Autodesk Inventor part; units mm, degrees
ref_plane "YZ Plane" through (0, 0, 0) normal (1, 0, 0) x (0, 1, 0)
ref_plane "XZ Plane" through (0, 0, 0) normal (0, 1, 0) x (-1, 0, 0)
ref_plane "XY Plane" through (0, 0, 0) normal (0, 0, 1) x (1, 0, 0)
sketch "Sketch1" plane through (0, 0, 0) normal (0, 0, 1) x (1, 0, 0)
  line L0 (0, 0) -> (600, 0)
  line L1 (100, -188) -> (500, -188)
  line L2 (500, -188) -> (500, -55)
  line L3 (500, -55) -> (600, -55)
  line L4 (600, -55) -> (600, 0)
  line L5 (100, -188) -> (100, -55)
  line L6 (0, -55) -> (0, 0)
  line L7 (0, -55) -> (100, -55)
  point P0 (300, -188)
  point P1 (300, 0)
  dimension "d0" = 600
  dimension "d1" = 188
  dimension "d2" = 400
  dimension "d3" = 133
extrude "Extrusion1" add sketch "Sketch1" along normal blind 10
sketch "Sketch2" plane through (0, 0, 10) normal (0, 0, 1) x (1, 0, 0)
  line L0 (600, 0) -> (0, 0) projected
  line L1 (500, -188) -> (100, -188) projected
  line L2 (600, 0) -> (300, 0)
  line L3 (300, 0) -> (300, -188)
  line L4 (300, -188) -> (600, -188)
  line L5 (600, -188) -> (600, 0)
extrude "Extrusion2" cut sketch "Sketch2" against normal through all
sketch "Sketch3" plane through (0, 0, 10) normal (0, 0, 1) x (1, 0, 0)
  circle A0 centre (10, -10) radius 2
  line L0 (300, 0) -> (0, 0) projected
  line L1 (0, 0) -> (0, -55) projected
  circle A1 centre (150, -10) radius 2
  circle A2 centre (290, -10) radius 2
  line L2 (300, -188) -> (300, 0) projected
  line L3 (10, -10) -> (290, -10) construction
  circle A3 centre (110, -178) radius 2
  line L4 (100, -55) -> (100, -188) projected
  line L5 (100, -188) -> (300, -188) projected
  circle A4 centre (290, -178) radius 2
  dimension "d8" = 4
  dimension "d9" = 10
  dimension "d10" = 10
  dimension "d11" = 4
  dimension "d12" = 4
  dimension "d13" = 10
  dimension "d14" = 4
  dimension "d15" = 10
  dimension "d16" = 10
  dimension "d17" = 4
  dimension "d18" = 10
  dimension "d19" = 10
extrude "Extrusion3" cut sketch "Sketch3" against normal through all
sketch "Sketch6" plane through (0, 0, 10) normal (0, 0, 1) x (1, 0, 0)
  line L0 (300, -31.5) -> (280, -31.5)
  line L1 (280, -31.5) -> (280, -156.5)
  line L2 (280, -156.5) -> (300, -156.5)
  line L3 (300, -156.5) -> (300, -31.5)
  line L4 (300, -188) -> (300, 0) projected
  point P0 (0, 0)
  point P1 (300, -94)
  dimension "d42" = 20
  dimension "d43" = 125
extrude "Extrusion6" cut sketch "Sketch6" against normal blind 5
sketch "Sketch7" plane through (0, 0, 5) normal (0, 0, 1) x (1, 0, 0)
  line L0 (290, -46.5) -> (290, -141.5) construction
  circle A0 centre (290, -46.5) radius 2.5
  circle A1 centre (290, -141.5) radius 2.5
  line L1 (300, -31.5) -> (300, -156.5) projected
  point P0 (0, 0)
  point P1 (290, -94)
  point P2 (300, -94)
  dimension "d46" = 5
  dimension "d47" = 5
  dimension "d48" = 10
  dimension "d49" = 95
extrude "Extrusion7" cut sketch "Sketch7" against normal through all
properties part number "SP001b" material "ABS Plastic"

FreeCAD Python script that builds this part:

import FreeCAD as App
import Part
import Sketcher


def add_polygon(sketch, points):
    """Adds a closed chain of lines whose ends are joined by coincident constraints."""
    first, n = sketch.GeometryCount, len(points)
    for a, b in zip(points, points[1:] + points[:1]):
        sketch.addGeometry(Part.LineSegment(App.Vector(*a, 0), App.Vector(*b, 0)), False)
    for i in range(n):
        sketch.addConstraint(Sketcher.Constraint("Coincident", first + i, 2, first + (i + 1) % n, 1))

doc = App.newDocument("Part")
body = doc.addObject("PartDesign::Body", "Body")

# Sketch on XY plane
sketch1 = body.newObject("Sketcher::SketchObject", "Sketch")
sketch1.AttachmentSupport = (doc.getObject("XY_Plane"), [""])
sketch1.MapMode = "FlatFace"
add_polygon(sketch1, [(600, 0), (0, 0), (0, -55), (100, -55), (100, -188), (500, -188), (500, -55), (600, -55)])  # lines 0-7
sketch1.addConstraint(Sketcher.Constraint("Horizontal", 0))
sketch1.addConstraint(Sketcher.Constraint("Vertical", 1))
sketch1.addConstraint(Sketcher.Constraint("Horizontal", 2))
sketch1.addConstraint(Sketcher.Constraint("Vertical", 3))
sketch1.addConstraint(Sketcher.Constraint("Horizontal", 4))
sketch1.addConstraint(Sketcher.Constraint("Vertical", 5))
sketch1.addConstraint(Sketcher.Constraint("Horizontal", 6))
sketch1.addConstraint(Sketcher.Constraint("Vertical", 7))
sketch1.addConstraint(Sketcher.Constraint("Coincident", 0, 2, -1, 1))
sketch1.addConstraint(Sketcher.Constraint("Horizontal", 2, 2, 5, 2))
sketch1.addConstraint(Sketcher.Constraint("Equal", 2, 6))
sketch1.addConstraint(Sketcher.Constraint("DistanceX", 0, 2, 0, 1, 600.0))
sketch1.addConstraint(Sketcher.Constraint("DistanceX", 4, 1, 4, 2, 400.0))
sketch1.addConstraint(Sketcher.Constraint("DistanceY", 3, 2, 3, 1, 133.0))
sketch1.addConstraint(Sketcher.Constraint("DistanceY", 3, 2, -1, 1, 188.0))
pad1 = body.newObject("PartDesign::Pad", "Pad")
pad1.Profile = sketch1
pad1.Length = 10

# Sketch on XY plane
sketch2 = body.newObject("Sketcher::SketchObject", "Sketch001")
sketch2.AttachmentSupport = (doc.getObject("XY_Plane"), [""])
sketch2.MapMode = "FlatFace"
sketch2.AttachmentOffset = App.Placement(App.Vector(0, 0, 10), App.Rotation())
add_polygon(sketch2, [(600, -188), (600, 0), (300, 0), (300, -188)])  # lines 0-3
sketch2.addConstraint(Sketcher.Constraint("Vertical", 0))
sketch2.addConstraint(Sketcher.Constraint("Horizontal", 1))
sketch2.addConstraint(Sketcher.Constraint("Vertical", 2))
sketch2.addConstraint(Sketcher.Constraint("Horizontal", 3))
sketch2.addConstraint(Sketcher.Constraint("PointOnObject", 0, 2, -1))
sketch2.addConstraint(Sketcher.Constraint("DistanceX", 1, 2, 1, 1, 300.0))
sketch2.addConstraint(Sketcher.Constraint("DistanceY", 0, 1, 0, 2, 188.0))
sketch2.addConstraint(Sketcher.Constraint("DistanceX", -1, 1, 0, 2, 600.0))
pocket1 = body.newObject("PartDesign::Pocket", "Pocket")
pocket1.Profile = sketch2
pocket1.Type = "ThroughAll"

# Sketch on XY plane
sketch3 = body.newObject("Sketcher::SketchObject", "Sketch002")
sketch3.AttachmentSupport = (doc.getObject("XY_Plane"), [""])
sketch3.MapMode = "FlatFace"
sketch3.AttachmentOffset = App.Placement(App.Vector(0, 0, 10), App.Rotation())
sketch3.addGeometry(Part.Circle(App.Vector(10, -10, 0), App.Vector(0, 0, 1), 2), False)
sketch3.addGeometry(Part.Circle(App.Vector(150, -10, 0), App.Vector(0, 0, 1), 2), False)
sketch3.addGeometry(Part.Circle(App.Vector(290, -10, 0), App.Vector(0, 0, 1), 2), False)
sketch3.addGeometry(Part.Circle(App.Vector(110, -178, 0), App.Vector(0, 0, 1), 2), False)
sketch3.addGeometry(Part.Circle(App.Vector(290, -178, 0), App.Vector(0, 0, 1), 2), False)
sketch3.addConstraint(Sketcher.Constraint("Equal", 0, 1))
sketch3.addConstraint(Sketcher.Constraint("Equal", 1, 2))
sketch3.addConstraint(Sketcher.Constraint("Equal", 2, 3))
sketch3.addConstraint(Sketcher.Constraint("Equal", 3, 4))
sketch3.addConstraint(Sketcher.Constraint("Horizontal", 0, 3, 1, 3))
sketch3.addConstraint(Sketcher.Constraint("Horizontal", 1, 3, 2, 3))
sketch3.addConstraint(Sketcher.Constraint("Horizontal", 3, 3, 4, 3))
sketch3.addConstraint(Sketcher.Constraint("Vertical", 2, 3, 4, 3))
sketch3.addConstraint(Sketcher.Constraint("Diameter", 0, 4.0))
sketch3.addConstraint(Sketcher.Constraint("DistanceX", -1, 1, 0, 3, 10.0))
sketch3.addConstraint(Sketcher.Constraint("DistanceY", 0, 3, -1, 1, 10.0))
sketch3.addConstraint(Sketcher.Constraint("DistanceX", -1, 1, 1, 3, 150.0))
sketch3.addConstraint(Sketcher.Constraint("DistanceX", -1, 1, 2, 3, 290.0))
sketch3.addConstraint(Sketcher.Constraint("DistanceX", -1, 1, 3, 3, 110.0))
sketch3.addConstraint(Sketcher.Constraint("DistanceY", 3, 3, -1, 1, 178.0))
pocket2 = body.newObject("PartDesign::Pocket", "Pocket001")
pocket2.Profile = sketch3
pocket2.Type = "ThroughAll"

# Sketch on XY plane
sketch4 = body.newObject("Sketcher::SketchObject", "Sketch003")
sketch4.AttachmentSupport = (doc.getObject("XY_Plane"), [""])
sketch4.MapMode = "FlatFace"
sketch4.AttachmentOffset = App.Placement(App.Vector(0, 0, 10), App.Rotation())
add_polygon(sketch4, [(300, -156.5), (300, -31.5), (280, -31.5), (280, -156.5)])  # lines 0-3
sketch4.addConstraint(Sketcher.Constraint("Vertical", 0))
sketch4.addConstraint(Sketcher.Constraint("Horizontal", 1))
sketch4.addConstraint(Sketcher.Constraint("Vertical", 2))
sketch4.addConstraint(Sketcher.Constraint("Horizontal", 3))
sketch4.addConstraint(Sketcher.Constraint("DistanceX", 1, 2, 1, 1, 20.0))
sketch4.addConstraint(Sketcher.Constraint("DistanceY", 0, 1, 0, 2, 125.0))
sketch4.addConstraint(Sketcher.Constraint("DistanceX", -1, 1, 0, 2, 300.0))
sketch4.addConstraint(Sketcher.Constraint("DistanceY", 0, 2, -1, 1, 31.5))
pocket3 = body.newObject("PartDesign::Pocket", "Pocket002")
pocket3.Profile = sketch4
pocket3.Length = 5

# Sketch on XY plane
sketch5 = body.newObject("Sketcher::SketchObject", "Sketch004")
sketch5.AttachmentSupport = (doc.getObject("XY_Plane"), [""])
sketch5.MapMode = "FlatFace"
sketch5.AttachmentOffset = App.Placement(App.Vector(0, 0, 5), App.Rotation())
sketch5.addGeometry(Part.Circle(App.Vector(290, -46.5, 0), App.Vector(0, 0, 1), 2.5), False)
sketch5.addGeometry(Part.Circle(App.Vector(290, -141.5, 0), App.Vector(0, 0, 1), 2.5), False)
sketch5.addConstraint(Sketcher.Constraint("Equal", 0, 1))
sketch5.addConstraint(Sketcher.Constraint("Vertical", 0, 3, 1, 3))
sketch5.addConstraint(Sketcher.Constraint("Diameter", 0, 5.0))
sketch5.addConstraint(Sketcher.Constraint("DistanceY", 1, 3, 0, 3, 95.0))
sketch5.addConstraint(Sketcher.Constraint("DistanceX", -1, 1, 0, 3, 290.0))
sketch5.addConstraint(Sketcher.Constraint("DistanceY", 0, 3, -1, 1, 46.5))
pocket4 = body.newObject("PartDesign::Pocket", "Pocket003")
pocket4.Profile = sketch5
pocket4.Type = "ThroughAll"

doc.recompute()
